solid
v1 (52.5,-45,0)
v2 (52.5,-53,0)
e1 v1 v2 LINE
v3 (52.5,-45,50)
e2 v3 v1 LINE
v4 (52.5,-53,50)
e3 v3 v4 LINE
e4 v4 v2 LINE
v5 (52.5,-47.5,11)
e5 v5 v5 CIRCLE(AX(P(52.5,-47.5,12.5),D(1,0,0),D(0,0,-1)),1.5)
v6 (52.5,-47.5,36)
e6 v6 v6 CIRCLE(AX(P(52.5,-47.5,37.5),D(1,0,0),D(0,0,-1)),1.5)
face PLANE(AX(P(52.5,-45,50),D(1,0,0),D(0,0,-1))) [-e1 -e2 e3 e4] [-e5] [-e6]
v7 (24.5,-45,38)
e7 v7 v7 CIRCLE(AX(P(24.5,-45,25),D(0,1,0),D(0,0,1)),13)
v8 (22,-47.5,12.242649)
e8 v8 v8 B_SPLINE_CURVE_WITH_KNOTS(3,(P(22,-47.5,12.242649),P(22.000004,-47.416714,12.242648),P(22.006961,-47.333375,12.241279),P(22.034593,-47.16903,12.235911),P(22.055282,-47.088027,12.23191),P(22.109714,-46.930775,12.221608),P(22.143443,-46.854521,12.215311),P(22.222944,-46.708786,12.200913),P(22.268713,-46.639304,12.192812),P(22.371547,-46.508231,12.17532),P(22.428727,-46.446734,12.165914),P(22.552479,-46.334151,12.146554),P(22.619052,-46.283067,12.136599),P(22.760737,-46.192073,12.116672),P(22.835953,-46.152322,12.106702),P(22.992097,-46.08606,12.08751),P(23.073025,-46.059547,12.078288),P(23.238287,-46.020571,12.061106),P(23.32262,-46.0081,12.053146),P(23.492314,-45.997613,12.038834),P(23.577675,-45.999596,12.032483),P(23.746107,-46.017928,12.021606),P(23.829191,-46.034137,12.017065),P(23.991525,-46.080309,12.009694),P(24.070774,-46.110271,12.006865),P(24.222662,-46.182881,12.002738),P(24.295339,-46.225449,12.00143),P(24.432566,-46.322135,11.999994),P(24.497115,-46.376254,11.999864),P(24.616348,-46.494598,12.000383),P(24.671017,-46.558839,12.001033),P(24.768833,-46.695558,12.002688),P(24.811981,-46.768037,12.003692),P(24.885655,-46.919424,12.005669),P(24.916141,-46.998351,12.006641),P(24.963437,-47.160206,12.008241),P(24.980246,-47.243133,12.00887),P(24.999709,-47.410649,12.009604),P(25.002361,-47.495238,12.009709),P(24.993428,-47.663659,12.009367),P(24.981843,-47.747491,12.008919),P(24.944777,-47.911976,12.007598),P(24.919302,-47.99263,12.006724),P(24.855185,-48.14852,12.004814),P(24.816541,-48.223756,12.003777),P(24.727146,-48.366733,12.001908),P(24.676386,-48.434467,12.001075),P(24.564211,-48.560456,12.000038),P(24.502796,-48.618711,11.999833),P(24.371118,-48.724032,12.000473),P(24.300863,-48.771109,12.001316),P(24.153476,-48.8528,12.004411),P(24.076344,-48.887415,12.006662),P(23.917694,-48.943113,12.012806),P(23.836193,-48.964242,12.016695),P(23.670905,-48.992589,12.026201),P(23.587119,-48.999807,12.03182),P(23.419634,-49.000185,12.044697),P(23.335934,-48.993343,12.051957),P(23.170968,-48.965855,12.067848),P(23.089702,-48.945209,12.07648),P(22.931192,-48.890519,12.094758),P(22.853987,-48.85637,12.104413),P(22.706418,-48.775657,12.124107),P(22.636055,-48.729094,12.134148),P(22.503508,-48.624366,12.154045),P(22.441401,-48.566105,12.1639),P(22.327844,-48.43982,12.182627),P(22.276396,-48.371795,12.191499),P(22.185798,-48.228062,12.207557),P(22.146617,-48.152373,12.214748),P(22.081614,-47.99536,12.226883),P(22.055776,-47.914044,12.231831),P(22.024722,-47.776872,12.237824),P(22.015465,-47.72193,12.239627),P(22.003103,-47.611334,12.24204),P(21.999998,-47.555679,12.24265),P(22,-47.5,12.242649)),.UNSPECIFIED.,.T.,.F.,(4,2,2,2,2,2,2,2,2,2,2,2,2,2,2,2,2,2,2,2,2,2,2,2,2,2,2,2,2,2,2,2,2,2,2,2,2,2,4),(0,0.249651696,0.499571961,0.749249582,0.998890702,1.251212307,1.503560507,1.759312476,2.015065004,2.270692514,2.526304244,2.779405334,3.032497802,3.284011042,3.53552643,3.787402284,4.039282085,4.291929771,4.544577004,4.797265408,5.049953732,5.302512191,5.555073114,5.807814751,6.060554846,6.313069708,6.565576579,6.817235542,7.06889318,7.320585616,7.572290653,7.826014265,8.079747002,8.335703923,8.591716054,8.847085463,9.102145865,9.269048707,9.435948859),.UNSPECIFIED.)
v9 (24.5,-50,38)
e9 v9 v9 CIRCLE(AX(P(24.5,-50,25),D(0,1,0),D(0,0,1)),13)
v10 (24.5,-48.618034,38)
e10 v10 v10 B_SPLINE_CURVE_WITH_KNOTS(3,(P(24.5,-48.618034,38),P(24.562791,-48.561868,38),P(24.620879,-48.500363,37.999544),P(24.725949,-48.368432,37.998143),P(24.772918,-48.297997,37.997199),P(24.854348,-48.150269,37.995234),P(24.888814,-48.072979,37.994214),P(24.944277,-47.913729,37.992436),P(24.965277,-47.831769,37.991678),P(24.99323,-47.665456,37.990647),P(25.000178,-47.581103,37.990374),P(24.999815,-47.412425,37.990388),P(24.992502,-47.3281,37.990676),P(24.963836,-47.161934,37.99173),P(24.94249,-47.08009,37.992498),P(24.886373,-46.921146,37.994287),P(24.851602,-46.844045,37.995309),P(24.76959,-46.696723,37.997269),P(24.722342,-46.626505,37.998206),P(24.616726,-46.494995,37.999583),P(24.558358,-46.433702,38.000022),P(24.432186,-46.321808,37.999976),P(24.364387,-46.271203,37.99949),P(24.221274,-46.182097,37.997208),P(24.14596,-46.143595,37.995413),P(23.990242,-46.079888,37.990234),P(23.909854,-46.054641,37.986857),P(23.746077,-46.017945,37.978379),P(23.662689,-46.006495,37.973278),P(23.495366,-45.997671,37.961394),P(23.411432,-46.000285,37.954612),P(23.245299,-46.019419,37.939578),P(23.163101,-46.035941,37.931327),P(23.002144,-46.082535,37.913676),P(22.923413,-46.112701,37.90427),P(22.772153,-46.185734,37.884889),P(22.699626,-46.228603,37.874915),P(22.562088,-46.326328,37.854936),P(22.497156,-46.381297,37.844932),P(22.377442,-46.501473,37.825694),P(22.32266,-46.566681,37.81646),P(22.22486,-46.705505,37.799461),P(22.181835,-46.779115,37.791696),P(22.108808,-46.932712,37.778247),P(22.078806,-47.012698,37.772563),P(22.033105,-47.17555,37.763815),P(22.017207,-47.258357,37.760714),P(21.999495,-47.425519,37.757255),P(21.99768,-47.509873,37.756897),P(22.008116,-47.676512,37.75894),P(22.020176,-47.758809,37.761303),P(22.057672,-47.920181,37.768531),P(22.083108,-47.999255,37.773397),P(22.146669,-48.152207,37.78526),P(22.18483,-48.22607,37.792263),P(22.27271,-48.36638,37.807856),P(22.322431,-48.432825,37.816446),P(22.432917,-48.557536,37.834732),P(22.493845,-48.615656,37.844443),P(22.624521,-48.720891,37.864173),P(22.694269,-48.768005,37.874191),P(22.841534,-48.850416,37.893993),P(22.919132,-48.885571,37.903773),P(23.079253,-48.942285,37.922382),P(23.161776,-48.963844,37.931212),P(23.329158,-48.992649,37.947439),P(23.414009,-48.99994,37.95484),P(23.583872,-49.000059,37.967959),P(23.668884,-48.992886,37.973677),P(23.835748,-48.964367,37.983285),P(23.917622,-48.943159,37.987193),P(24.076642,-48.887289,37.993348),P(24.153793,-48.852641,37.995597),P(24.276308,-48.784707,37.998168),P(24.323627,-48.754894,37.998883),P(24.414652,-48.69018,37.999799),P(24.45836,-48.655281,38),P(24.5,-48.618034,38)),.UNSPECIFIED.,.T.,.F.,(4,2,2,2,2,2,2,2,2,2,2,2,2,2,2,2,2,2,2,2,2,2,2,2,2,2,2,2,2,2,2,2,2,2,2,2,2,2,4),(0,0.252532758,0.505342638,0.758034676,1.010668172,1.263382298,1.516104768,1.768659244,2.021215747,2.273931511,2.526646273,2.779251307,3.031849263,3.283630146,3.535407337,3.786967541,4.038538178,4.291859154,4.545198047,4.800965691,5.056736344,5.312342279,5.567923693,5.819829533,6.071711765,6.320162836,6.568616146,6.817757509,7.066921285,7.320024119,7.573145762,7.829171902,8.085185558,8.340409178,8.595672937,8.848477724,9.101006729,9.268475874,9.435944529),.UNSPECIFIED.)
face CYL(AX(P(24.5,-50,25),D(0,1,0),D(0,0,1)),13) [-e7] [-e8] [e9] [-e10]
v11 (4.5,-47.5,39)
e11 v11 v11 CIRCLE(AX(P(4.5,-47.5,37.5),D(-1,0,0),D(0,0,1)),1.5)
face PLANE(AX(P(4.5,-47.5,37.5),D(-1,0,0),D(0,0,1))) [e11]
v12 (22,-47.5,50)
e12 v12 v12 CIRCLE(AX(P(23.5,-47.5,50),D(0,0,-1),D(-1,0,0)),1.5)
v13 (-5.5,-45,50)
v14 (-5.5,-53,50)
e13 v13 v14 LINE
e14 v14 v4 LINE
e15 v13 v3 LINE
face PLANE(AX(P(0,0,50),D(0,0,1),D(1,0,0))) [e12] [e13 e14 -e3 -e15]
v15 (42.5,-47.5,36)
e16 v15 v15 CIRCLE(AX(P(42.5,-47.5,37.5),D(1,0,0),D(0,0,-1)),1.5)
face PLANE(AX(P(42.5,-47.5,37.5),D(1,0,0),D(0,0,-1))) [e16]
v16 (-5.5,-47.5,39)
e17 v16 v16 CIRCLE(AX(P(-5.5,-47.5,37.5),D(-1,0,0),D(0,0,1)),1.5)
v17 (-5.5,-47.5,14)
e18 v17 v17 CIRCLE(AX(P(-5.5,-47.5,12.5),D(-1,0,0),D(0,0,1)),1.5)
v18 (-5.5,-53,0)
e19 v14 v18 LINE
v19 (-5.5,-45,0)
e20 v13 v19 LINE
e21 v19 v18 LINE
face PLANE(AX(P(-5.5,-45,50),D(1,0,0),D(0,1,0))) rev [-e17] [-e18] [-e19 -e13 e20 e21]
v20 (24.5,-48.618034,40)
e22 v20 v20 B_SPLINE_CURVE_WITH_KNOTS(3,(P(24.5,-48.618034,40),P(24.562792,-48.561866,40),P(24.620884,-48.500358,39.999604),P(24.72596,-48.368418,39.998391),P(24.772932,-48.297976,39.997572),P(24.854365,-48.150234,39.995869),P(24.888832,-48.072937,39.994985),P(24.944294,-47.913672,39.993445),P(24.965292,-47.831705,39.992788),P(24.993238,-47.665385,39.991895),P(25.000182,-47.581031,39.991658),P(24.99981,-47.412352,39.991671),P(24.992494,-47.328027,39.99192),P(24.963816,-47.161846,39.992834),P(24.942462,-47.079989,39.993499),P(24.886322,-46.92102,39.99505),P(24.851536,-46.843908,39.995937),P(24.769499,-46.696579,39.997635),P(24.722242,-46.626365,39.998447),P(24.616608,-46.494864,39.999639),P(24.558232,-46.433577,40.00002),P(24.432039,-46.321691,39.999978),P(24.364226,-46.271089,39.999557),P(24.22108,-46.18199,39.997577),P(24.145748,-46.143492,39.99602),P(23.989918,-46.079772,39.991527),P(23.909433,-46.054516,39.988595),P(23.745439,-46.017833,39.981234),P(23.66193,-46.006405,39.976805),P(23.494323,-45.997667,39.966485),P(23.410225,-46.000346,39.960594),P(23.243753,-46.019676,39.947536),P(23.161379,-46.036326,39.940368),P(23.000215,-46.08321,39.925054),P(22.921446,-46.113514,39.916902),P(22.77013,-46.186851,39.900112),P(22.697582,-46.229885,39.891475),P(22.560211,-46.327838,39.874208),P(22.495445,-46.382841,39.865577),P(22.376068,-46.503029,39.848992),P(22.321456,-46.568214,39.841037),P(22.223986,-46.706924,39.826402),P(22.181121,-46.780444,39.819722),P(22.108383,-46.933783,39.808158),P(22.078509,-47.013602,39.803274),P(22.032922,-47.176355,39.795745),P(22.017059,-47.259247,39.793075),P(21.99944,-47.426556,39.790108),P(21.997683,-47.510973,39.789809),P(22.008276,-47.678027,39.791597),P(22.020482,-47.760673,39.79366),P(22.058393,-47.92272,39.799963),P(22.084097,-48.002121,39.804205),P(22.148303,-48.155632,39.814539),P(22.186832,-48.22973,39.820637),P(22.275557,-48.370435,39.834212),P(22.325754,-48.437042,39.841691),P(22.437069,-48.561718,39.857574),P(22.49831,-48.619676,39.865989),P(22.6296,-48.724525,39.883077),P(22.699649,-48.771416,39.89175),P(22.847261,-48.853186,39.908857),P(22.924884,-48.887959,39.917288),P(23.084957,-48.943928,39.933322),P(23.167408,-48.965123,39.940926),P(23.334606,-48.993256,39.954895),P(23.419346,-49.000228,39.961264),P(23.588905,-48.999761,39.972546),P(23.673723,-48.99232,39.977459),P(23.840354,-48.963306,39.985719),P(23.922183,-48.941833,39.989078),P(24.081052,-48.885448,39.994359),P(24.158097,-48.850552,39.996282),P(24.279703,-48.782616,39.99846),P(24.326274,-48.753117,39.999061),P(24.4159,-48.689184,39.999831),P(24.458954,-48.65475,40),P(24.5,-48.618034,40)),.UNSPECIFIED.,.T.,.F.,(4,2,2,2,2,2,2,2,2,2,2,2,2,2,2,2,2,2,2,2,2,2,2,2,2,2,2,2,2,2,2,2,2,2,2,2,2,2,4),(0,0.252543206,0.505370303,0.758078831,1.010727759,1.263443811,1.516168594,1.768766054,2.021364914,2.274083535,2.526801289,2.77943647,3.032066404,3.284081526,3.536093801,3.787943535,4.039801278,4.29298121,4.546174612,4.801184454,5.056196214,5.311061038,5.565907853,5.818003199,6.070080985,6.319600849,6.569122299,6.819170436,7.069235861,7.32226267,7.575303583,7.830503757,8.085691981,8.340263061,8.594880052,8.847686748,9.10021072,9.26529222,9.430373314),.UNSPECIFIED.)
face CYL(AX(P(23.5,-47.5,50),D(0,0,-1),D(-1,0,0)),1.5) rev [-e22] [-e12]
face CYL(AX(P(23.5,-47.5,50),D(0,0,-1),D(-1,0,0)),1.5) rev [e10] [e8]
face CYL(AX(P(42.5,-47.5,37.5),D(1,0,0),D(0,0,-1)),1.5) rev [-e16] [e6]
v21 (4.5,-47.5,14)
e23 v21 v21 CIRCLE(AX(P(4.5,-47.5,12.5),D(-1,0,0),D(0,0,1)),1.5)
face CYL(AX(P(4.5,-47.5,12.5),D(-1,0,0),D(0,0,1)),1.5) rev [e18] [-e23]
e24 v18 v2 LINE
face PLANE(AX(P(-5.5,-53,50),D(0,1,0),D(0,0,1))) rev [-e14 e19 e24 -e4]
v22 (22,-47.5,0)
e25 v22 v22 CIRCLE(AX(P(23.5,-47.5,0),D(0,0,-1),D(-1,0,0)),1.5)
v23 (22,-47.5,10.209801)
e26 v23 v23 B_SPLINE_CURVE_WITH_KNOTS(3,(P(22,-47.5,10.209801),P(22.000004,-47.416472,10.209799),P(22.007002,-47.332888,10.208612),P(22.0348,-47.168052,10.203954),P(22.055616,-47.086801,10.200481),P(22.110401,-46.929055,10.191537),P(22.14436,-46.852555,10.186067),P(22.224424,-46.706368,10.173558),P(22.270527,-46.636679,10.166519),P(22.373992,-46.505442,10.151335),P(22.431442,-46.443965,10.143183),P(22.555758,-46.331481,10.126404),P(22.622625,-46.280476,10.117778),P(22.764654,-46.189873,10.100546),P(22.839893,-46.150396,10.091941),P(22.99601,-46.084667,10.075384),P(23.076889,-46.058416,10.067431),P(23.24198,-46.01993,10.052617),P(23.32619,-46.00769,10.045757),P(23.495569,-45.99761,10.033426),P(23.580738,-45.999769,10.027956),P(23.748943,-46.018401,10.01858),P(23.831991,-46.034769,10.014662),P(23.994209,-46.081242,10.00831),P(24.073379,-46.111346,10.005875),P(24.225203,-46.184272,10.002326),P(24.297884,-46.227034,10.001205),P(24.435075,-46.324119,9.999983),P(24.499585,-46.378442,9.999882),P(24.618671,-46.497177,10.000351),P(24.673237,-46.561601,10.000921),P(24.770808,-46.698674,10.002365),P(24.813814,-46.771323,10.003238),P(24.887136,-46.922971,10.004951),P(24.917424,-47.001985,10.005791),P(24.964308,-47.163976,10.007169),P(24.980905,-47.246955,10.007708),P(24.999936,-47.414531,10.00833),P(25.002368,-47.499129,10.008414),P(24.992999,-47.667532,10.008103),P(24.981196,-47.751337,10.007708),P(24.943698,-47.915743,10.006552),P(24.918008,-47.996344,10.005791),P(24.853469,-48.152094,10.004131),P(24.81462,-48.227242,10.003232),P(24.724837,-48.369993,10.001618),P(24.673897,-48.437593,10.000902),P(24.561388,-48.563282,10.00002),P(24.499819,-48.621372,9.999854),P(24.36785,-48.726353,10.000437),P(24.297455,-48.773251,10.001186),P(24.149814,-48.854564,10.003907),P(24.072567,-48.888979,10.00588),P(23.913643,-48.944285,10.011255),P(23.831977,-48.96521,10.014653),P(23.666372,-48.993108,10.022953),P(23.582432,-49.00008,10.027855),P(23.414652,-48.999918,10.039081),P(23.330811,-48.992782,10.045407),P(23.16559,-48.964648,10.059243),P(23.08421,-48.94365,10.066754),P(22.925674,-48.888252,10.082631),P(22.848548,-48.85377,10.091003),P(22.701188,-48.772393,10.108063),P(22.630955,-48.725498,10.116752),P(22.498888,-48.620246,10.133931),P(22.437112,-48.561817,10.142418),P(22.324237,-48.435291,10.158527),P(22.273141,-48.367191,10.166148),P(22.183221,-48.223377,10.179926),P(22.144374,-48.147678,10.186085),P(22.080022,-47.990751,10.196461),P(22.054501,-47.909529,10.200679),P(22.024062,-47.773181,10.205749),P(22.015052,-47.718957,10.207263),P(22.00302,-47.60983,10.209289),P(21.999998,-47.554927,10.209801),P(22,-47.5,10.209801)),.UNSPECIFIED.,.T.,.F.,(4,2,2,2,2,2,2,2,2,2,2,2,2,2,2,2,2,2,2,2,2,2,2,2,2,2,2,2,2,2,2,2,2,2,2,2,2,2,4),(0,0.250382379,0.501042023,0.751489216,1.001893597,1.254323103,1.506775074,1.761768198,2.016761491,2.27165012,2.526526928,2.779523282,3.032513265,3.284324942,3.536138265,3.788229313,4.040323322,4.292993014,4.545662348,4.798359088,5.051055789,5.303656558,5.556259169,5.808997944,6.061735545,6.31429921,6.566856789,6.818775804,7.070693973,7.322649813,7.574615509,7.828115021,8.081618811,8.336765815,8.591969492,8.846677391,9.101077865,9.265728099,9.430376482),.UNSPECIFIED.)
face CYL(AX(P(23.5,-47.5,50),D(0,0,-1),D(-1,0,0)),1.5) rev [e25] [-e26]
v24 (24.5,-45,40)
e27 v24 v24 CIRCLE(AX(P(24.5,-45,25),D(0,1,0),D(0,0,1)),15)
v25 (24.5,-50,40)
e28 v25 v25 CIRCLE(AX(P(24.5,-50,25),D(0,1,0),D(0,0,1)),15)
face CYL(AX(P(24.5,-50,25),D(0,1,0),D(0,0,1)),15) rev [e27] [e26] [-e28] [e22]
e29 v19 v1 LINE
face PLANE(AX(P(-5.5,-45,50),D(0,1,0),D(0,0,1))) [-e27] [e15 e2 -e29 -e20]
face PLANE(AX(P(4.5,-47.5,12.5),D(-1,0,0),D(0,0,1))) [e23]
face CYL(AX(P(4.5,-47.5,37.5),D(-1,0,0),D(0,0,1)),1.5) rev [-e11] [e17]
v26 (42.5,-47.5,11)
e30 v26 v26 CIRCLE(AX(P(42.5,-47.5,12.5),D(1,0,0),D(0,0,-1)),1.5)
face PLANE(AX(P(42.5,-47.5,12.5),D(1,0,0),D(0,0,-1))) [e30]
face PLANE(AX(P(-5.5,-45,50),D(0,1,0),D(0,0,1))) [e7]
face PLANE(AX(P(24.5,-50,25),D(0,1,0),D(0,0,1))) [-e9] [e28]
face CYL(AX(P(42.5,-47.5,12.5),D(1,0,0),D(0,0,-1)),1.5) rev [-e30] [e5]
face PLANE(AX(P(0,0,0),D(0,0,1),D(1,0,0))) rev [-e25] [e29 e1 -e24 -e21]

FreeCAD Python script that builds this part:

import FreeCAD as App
import Part
import Sketcher
from FreeCAD import Vector
Q = App.Units.Quantity


def add_polygon(sketch, points):
    """Adds a closed chain of lines whose ends are joined by coincident constraints."""
    first, n = sketch.GeometryCount, len(points)
    for a, b in zip(points, points[1:] + points[:1]):
        sketch.addGeometry(Part.LineSegment(App.Vector(*a, 0), App.Vector(*b, 0)), False)
    for i in range(n):
        sketch.addConstraint(Sketcher.Constraint("Coincident", first + i, 2, first + (i + 1) % n, 1))

doc = App.newDocument("Part")
params = doc.addObject("Spreadsheet::Sheet", "Params")
for row, (alias, value) in enumerate([
    ("sketch1_width", "58 mm"),
    ("sketch1_height", "8 mm"),
    ("pad1_length", "50 mm"),
    ("sketch2_diameter", "30 mm"),
    ("sketch2_diameter2", "26 mm"),
    ("pocket1_length", "5 mm"),
    ("sketch3_diameter", "3 mm"),
    ("pocket2_length", "10 mm"),
    ("sketch4_diameter", "3 mm"),
    ("pocket3_length", "10 mm"),
    ("sketch5_diameter", "3 mm"),
], start=1):
    params.set(f"A{row}", alias)
    params.set(f"B{row}", "=" + value)
    params.setAlias(f"B{row}", alias)

body = doc.addObject("PartDesign::Body", "Body")

# Sketch on XY plane
sketch1 = body.newObject("Sketcher::SketchObject", "Sketch")
sketch1.AttachmentSupport = (doc.getObject("XY_Plane"), [""])
sketch1.MapMode = "FlatFace"
add_polygon(sketch1, [(-5.5, -45), (-5.5, -53), (52.5, -53), (52.5, -45)])  # lines 0-3
sketch1.addConstraint([
    Sketcher.Constraint("Vertical", 0),
    Sketcher.Constraint("Horizontal", 1),
    Sketcher.Constraint("Vertical", 2),
    Sketcher.Constraint("Horizontal", 3),
    Sketcher.Constraint("DistanceX", 1, 1, 1, 2, Q("58 mm")),
    Sketcher.Constraint("DistanceY", 0, 2, 0, 1, Q("8 mm")),
    Sketcher.Constraint("DistanceY", 0, 2, -1, 1, Q("53 mm")),
    Sketcher.Constraint("DistanceX", 0, 2, -1, 1, Q("5.5 mm")),
])
sketch1.setExpression("Constraints[8]", "Params.sketch1_width")
sketch1.setExpression("Constraints[9]", "Params.sketch1_height")
pad1 = body.newObject("PartDesign::Pad", "Pad")
pad1.Profile = sketch1
pad1.setExpression("Length", "Params.pad1_length")

# Sketch on XZ plane
sketch2 = body.newObject("Sketcher::SketchObject", "Sketch001")
sketch2.AttachmentSupport = (doc.getObject("XZ_Plane"), [""])
sketch2.MapMode = "FlatFace"
sketch2.AttachmentOffset = App.Placement(Vector(0, 0, 45), App.Rotation())
sketch2.addGeometry([
    Part.Circle(Vector(24.5, 25, 0), Vector(0, 0, 1), 15),
    Part.Circle(Vector(24.5, 25, 0), Vector(0, 0, 1), 13),
], False)
sketch2.addConstraint([
    Sketcher.Constraint("Coincident", 1, 3, 0, 3),
    Sketcher.Constraint("Diameter", 0, Q("30 mm")),
    Sketcher.Constraint("Diameter", 1, Q("26 mm")),
    Sketcher.Constraint("DistanceY", -1, 1, 0, 3, Q("25 mm")),
    Sketcher.Constraint("DistanceX", -1, 1, 0, 3, Q("24.5 mm")),
])
sketch2.setExpression("Constraints[1]", "Params.sketch2_diameter")
sketch2.setExpression("Constraints[2]", "Params.sketch2_diameter2")
pocket1 = body.newObject("PartDesign::Pocket", "Pocket")
pocket1.Profile = sketch2
pocket1.setExpression("Length", "Params.pocket1_length")
pocket1.Reversed = True

# Sketch on YZ plane
sketch3 = body.newObject("Sketcher::SketchObject", "Sketch002")
sketch3.AttachmentSupport = (doc.getObject("YZ_Plane"), [""])
sketch3.MapMode = "FlatFace"
sketch3.AttachmentOffset = App.Placement(Vector(0, 0, -5.5), App.Rotation())
sketch3.addGeometry([
    Part.Circle(Vector(-47.5, 12.5, 0), Vector(0, 0, 1), 1.5),
    Part.Circle(Vector(-47.5, 37.5, 0), Vector(0, 0, 1), 1.5),
], False)
sketch3.addConstraint([
    Sketcher.Constraint("Equal", 0, 1),
    Sketcher.Constraint("Vertical", 0, 3, 1, 3),
    Sketcher.Constraint("Diameter", 0, Q("3 mm")),
    Sketcher.Constraint("DistanceY", 0, 3, 1, 3, Q("25 mm")),
    Sketcher.Constraint("DistanceX", 0, 3, -1, 1, Q("47.5 mm")),
    Sketcher.Constraint("DistanceY", -1, 1, 0, 3, Q("12.5 mm")),
])
sketch3.setExpression("Constraints[2]", "Params.sketch3_diameter")
pocket2 = body.newObject("PartDesign::Pocket", "Pocket001")
pocket2.Profile = sketch3
pocket2.setExpression("Length", "Params.pocket2_length")
pocket2.Reversed = True

# Sketch on YZ plane
sketch4 = body.newObject("Sketcher::SketchObject", "Sketch003")
sketch4.AttachmentSupport = (doc.getObject("YZ_Plane"), [""])
sketch4.MapMode = "FlatFace"
sketch4.AttachmentOffset = App.Placement(Vector(0, 0, 52.5), App.Rotation())
sketch4.addGeometry([
    Part.Circle(Vector(-47.5, 37.5, 0), Vector(0, 0, 1), 1.5),
    Part.Circle(Vector(-47.5, 12.5, 0), Vector(0, 0, 1), 1.5),
], False)
sketch4.addConstraint([
    Sketcher.Constraint("Equal", 0, 1),
    Sketcher.Constraint("Vertical", 0, 3, 1, 3),
    Sketcher.Constraint("Diameter", 0, Q("3 mm")),
    Sketcher.Constraint("DistanceY", 1, 3, 0, 3, Q("25 mm")),
    Sketcher.Constraint("DistanceX", 0, 3, -1, 1, Q("47.5 mm")),
    Sketcher.Constraint("DistanceY", -1, 1, 0, 3, Q("37.5 mm")),
])
sketch4.setExpression("Constraints[2]", "Params.sketch4_diameter")
pocket3 = body.newObject("PartDesign::Pocket", "Pocket002")
pocket3.Profile = sketch4
pocket3.setExpression("Length", "Params.pocket3_length")

# Sketch on XY plane
sketch5 = body.newObject("Sketcher::SketchObject", "Sketch004")
sketch5.AttachmentSupport = (doc.getObject("XY_Plane"), [""])
sketch5.MapMode = "FlatFace"
sketch5.addGeometry(Part.Circle(Vector(23.5, -47.5, 0), Vector(0, 0, 1), 1.5), False)
sketch5.addConstraint([
    Sketcher.Constraint("Diameter", 0, Q("3 mm")),
    Sketcher.Constraint("DistanceX", -1, 1, 0, 3, Q("23.5 mm")),
    Sketcher.Constraint("DistanceY", 0, 3, -1, 1, Q("47.5 mm")),
])
sketch5.setExpression("Constraints[0]", "Params.sketch5_diameter")
pocket4 = body.newObject("PartDesign::Pocket", "Pocket003")
pocket4.Profile = sketch5
pocket4.Type = "ThroughAll"
pocket4.Reversed = True

doc.recompute()
